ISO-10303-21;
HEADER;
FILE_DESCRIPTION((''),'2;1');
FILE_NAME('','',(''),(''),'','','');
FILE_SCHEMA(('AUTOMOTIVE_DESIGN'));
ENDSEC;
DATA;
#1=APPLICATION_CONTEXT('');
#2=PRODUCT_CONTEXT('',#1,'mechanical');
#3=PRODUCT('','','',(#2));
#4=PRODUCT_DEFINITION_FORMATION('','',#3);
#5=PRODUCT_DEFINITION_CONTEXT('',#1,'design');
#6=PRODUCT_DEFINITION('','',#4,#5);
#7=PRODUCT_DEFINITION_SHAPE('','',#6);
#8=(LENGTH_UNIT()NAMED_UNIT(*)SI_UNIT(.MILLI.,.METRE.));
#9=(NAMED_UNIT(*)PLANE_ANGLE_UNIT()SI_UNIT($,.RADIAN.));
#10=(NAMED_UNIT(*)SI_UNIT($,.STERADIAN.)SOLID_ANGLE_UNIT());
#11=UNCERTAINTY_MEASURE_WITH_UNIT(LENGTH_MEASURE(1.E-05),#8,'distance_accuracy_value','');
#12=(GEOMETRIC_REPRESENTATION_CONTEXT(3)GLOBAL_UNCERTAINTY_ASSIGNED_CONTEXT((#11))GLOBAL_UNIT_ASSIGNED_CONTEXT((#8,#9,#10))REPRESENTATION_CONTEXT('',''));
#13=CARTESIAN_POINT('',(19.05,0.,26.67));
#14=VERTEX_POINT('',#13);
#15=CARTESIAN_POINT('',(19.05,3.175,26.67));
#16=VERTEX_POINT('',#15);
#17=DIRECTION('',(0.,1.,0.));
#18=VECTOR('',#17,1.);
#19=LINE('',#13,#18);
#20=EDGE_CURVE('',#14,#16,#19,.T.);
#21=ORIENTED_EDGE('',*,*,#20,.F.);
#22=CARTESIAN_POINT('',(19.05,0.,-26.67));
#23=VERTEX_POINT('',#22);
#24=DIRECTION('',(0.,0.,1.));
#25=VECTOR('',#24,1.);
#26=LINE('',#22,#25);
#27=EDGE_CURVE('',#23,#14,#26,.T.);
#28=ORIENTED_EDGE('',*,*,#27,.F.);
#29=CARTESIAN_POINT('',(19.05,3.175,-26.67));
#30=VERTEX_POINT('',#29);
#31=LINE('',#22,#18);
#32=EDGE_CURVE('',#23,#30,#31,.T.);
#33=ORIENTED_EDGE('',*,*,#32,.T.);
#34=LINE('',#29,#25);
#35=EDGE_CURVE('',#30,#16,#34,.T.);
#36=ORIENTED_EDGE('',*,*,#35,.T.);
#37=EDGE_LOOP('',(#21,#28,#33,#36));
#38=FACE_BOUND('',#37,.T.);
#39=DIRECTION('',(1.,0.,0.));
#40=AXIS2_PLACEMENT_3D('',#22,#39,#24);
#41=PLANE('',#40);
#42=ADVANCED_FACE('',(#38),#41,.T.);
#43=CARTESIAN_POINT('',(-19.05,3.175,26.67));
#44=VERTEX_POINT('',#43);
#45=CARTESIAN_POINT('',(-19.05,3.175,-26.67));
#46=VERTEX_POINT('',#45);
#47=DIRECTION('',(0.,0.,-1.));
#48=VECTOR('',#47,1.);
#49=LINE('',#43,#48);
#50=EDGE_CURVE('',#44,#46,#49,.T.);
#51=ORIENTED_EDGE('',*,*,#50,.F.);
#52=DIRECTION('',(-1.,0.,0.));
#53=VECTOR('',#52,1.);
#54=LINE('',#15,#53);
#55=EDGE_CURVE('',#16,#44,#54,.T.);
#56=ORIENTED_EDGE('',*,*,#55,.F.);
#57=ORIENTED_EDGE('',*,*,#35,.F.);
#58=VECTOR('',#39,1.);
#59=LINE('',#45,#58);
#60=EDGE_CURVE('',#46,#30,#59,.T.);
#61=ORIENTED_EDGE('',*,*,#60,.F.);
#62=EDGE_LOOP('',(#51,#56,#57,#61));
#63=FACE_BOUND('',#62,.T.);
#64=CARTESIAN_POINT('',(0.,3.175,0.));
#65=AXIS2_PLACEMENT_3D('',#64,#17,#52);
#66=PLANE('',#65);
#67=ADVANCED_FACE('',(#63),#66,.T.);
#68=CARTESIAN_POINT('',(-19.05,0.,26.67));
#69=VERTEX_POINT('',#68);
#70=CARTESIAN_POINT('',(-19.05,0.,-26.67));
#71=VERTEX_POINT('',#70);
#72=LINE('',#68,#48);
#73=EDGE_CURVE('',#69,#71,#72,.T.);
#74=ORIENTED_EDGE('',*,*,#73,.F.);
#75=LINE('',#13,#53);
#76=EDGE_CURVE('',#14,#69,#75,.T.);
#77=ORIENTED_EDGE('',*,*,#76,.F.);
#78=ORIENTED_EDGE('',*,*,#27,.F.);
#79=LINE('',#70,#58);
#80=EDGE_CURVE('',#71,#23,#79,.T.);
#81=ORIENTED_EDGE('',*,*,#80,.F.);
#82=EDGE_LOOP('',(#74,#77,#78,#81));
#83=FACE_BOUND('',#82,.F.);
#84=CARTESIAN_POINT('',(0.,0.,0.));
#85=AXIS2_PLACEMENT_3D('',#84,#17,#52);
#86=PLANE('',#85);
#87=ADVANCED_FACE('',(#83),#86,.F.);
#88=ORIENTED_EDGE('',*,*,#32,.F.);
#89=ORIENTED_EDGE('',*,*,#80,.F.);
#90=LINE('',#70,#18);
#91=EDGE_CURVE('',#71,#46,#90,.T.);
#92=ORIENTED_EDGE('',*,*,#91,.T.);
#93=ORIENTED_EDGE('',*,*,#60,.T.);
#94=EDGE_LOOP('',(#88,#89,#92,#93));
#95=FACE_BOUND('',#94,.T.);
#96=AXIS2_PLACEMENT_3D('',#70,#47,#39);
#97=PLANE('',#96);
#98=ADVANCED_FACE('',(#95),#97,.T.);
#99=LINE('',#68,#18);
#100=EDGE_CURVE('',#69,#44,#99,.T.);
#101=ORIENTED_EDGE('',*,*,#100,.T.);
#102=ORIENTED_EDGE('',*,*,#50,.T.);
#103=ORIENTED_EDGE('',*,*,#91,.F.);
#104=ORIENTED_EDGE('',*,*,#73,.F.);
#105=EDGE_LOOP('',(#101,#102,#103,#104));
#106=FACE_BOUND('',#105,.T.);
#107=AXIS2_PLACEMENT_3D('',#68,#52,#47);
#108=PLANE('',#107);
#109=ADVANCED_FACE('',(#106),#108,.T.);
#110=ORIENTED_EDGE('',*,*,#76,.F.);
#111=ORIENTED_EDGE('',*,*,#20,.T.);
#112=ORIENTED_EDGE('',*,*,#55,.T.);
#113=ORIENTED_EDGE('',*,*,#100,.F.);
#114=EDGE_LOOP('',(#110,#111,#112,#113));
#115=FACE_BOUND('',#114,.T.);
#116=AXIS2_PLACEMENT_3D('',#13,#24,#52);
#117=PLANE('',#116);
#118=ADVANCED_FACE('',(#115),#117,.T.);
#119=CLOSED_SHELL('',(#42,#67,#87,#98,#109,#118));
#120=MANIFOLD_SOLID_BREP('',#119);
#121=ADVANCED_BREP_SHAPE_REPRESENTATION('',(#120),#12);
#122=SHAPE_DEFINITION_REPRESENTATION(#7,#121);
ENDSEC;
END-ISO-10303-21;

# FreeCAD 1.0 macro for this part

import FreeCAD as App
import Part
import Sketcher

V = App.Vector
Q = App.Units.Quantity

doc = App.newDocument("Part")
body = doc.addObject("PartDesign::Body", "Body")

# Sketch on XZ plane
sketch1 = body.newObject("Sketcher::SketchObject", "Sketch")
sketch1.AttachmentSupport = (doc.getObject("XZ_Plane"), [""])
sketch1.MapMode = "FlatFace"
sketch1.addGeometry([
    Part.LineSegment(V(19, -27, 0), V(-19, -27, 0)),
    Part.LineSegment(V(-19, -27, 0), V(-19, 27, 0)),
    Part.LineSegment(V(-19, 27, 0), V(19, 27, 0)),
    Part.LineSegment(V(19, 27, 0), V(19, -27, 0)),
], False)
sketch1.addConstraint([
    Sketcher.Constraint("Coincident", 0, 2, 1, 1),
    Sketcher.Constraint("Coincident", 1, 2, 2, 1),
    Sketcher.Constraint("Coincident", 2, 2, 3, 1),
    Sketcher.Constraint("Coincident", 3, 2, 0, 1),
    Sketcher.Constraint("Horizontal", 0),
    Sketcher.Constraint("Vertical", 1),
    Sketcher.Constraint("Horizontal", 2),
    Sketcher.Constraint("Vertical", 3),
    Sketcher.Constraint("Symmetric", 0, 2, 2, 2, -1, 1),
    Sketcher.Constraint("DistanceX", 0, 2, 0, 1, Q("1.5 in")),
    Sketcher.Constraint("DistanceY", 1, 1, 1, 2, Q("2.1 in")),
])
pad1 = body.newObject("PartDesign::Pad", "Pad")
pad1.Profile = sketch1
pad1.Length = Q("0.125 in")
pad1.Reversed = True

doc.recompute()
